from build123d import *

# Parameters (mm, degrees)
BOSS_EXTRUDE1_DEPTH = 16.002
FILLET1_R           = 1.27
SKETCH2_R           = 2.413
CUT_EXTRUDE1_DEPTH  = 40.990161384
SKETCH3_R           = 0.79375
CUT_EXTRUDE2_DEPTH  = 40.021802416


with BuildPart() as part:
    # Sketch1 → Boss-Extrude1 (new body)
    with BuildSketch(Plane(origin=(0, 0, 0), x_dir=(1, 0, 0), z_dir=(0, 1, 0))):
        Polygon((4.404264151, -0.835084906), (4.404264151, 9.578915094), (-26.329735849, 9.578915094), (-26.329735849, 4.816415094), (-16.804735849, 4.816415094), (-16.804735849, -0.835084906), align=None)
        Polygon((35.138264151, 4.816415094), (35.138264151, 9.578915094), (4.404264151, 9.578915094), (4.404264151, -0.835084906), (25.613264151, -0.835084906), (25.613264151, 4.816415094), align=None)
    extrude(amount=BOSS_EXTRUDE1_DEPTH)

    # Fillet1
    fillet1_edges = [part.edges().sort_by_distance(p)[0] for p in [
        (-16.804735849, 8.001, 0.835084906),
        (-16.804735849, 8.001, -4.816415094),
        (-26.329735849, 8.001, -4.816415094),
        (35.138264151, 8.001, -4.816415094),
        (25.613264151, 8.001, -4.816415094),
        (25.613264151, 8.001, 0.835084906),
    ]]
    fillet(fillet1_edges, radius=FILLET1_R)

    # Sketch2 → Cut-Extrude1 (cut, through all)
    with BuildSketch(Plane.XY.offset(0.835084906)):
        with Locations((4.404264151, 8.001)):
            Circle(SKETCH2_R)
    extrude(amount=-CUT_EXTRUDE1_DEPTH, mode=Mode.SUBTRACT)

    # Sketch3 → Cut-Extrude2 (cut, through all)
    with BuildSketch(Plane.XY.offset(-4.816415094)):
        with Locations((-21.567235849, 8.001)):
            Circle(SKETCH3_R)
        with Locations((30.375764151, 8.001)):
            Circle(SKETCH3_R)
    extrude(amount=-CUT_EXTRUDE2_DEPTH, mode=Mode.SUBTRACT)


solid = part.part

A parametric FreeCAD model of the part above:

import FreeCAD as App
import Part
import Sketcher
Q = App.Units.Quantity


def edges_at(feature, points):
    """Names of the edges that pass closest to the given points."""
    edges = feature.Shape.Edges
    near = lambda p: min(range(len(edges)), key=lambda i: edges[i].distToShape(Part.Vertex(*p))[0])
    return sorted({f"Edge{near(p) + 1}" for p in points})


def add_polygon(sketch, points):
    """Adds a closed chain of lines whose ends are joined by coincident constraints."""
    first, n = sketch.GeometryCount, len(points)
    for a, b in zip(points, points[1:] + points[:1]):
        sketch.addGeometry(Part.LineSegment(App.Vector(*a, 0), App.Vector(*b, 0)), False)
    for i in range(n):
        sketch.addConstraint(Sketcher.Constraint("Coincident", first + i, 2, first + (i + 1) % n, 1))

doc = App.newDocument("Part")
body = doc.addObject("PartDesign::Body", "Body")

sketch1 = body.newObject("Sketcher::SketchObject", "Sketch")
sketch1.AttachmentSupport = (doc.getObject("XZ_Plane"), [""])
sketch1.MapMode = "FlatFace"
add_polygon(sketch1, [(-26.329736, -9.578915), (-26.329736, -4.816415), (-16.804736, -4.816415), (-16.804736, 0.835085), (25.613264, 0.835085), (25.613264, -4.816415), (35.138264, -4.816415), (35.138264, -9.578915)])
sketch1.addConstraint([
    Sketcher.Constraint("Vertical", 0),
    Sketcher.Constraint("Horizontal", 1),
    Sketcher.Constraint("Vertical", 2),
    Sketcher.Constraint("Horizontal", 3),
    Sketcher.Constraint("Vertical", 4),
    Sketcher.Constraint("Horizontal", 5),
    Sketcher.Constraint("Vertical", 6),
    Sketcher.Constraint("Horizontal", 7),
    Sketcher.Constraint("Horizontal", 1, 2, 4, 2),
    Sketcher.Constraint("Equal", 1, 5),
    Sketcher.Constraint("DistanceX", 3, 1, 3, 2, Q("1.67 in")),
    Sketcher.Constraint("DistanceX", 7, 2, 7, 1, Q("2.42 in")),
    Sketcher.Constraint("DistanceY", 0, 1, 0, 2, Q("0.1875 in")),
    Sketcher.Constraint("DistanceY", 6, 2, 3, 2, Q("0.41 in")),
    Sketcher.Constraint("DistanceX", 0, 2, -1, 1, Q("26.329736 mm")),
    Sketcher.Constraint("DistanceY", 0, 2, -1, 1, Q("4.816415 mm")),
])
pad1 = body.newObject("PartDesign::Pad", "Pad")
pad1.Profile = sketch1
pad1.Length = Q("0.63 in")
pad1.Reversed = True
doc.recompute()

fillet = body.newObject("PartDesign::Fillet", "Fillet")
fillet.Base = (pad1, edges_at(pad1, [
    (-16.805, 8.001, 0.835),
    (-16.805, 8.001, -4.816),
    (-26.33, 8.001, -4.816),
    (35.138, 8.001, -4.816),
    (25.613, 8.001, -4.816),
    (25.613, 8.001, 0.835),
]))
fillet.Radius = Q("0.05 in")

sketch2 = body.newObject("Sketcher::SketchObject", "Sketch001")
sketch2.AttachmentSupport = (doc.getObject("XY_Plane"), [""])
sketch2.MapMode = "FlatFace"
sketch2.AttachmentOffset = App.Placement(App.Vector(0, 0, 0.835085), App.Rotation())
sketch2.addGeometry(Part.Circle(App.Vector(4.404264, 8.001, 0), App.Vector(0, 0, 1), 2.413), False)
sketch2.addConstraint([
    Sketcher.Constraint("Diameter", 0, Q("0.19 in")),
    Sketcher.Constraint("DistanceY", -1, 1, 0, 3, Q("0.315 in")),
    Sketcher.Constraint("DistanceX", -1, 1, 0, 3, Q("4.404264 mm")),
])
pocket1 = body.newObject("PartDesign::Pocket", "Pocket")
pocket1.Profile = sketch2
pocket1.Type = "ThroughAll"

sketch3 = body.newObject("Sketcher::SketchObject", "Sketch002")
sketch3.AttachmentSupport = (doc.getObject("XY_Plane"), [""])
sketch3.MapMode = "FlatFace"
sketch3.AttachmentOffset = App.Placement(App.Vector(0, 0, -4.816415), App.Rotation())
sketch3.addGeometry([
    Part.Circle(App.Vector(-21.567236, 8.001, 0), App.Vector(0, 0, 1), 0.79375),
    Part.Circle(App.Vector(30.375764, 8.001, 0), App.Vector(0, 0, 1), 0.79375),
], False)
sketch3.addConstraint([
    Sketcher.Constraint("Equal", 0, 1),
    Sketcher.Constraint("Horizontal", 0, 3, 1, 3),
    Sketcher.Constraint("Diameter", 0, Q("0.0625 in")),
    Sketcher.Constraint("DistanceY", -1, 1, 0, 3, Q("0.315 in")),
    Sketcher.Constraint("DistanceX", 0, 3, 1, 3, Q("2.045 in")),
    Sketcher.Constraint("DistanceX", 0, 3, -1, 1, Q("21.567236 mm")),
])
pocket2 = body.newObject("PartDesign::Pocket", "Pocket001")
pocket2.Profile = sketch3
pocket2.Type = "ThroughAll"

doc.recompute()
